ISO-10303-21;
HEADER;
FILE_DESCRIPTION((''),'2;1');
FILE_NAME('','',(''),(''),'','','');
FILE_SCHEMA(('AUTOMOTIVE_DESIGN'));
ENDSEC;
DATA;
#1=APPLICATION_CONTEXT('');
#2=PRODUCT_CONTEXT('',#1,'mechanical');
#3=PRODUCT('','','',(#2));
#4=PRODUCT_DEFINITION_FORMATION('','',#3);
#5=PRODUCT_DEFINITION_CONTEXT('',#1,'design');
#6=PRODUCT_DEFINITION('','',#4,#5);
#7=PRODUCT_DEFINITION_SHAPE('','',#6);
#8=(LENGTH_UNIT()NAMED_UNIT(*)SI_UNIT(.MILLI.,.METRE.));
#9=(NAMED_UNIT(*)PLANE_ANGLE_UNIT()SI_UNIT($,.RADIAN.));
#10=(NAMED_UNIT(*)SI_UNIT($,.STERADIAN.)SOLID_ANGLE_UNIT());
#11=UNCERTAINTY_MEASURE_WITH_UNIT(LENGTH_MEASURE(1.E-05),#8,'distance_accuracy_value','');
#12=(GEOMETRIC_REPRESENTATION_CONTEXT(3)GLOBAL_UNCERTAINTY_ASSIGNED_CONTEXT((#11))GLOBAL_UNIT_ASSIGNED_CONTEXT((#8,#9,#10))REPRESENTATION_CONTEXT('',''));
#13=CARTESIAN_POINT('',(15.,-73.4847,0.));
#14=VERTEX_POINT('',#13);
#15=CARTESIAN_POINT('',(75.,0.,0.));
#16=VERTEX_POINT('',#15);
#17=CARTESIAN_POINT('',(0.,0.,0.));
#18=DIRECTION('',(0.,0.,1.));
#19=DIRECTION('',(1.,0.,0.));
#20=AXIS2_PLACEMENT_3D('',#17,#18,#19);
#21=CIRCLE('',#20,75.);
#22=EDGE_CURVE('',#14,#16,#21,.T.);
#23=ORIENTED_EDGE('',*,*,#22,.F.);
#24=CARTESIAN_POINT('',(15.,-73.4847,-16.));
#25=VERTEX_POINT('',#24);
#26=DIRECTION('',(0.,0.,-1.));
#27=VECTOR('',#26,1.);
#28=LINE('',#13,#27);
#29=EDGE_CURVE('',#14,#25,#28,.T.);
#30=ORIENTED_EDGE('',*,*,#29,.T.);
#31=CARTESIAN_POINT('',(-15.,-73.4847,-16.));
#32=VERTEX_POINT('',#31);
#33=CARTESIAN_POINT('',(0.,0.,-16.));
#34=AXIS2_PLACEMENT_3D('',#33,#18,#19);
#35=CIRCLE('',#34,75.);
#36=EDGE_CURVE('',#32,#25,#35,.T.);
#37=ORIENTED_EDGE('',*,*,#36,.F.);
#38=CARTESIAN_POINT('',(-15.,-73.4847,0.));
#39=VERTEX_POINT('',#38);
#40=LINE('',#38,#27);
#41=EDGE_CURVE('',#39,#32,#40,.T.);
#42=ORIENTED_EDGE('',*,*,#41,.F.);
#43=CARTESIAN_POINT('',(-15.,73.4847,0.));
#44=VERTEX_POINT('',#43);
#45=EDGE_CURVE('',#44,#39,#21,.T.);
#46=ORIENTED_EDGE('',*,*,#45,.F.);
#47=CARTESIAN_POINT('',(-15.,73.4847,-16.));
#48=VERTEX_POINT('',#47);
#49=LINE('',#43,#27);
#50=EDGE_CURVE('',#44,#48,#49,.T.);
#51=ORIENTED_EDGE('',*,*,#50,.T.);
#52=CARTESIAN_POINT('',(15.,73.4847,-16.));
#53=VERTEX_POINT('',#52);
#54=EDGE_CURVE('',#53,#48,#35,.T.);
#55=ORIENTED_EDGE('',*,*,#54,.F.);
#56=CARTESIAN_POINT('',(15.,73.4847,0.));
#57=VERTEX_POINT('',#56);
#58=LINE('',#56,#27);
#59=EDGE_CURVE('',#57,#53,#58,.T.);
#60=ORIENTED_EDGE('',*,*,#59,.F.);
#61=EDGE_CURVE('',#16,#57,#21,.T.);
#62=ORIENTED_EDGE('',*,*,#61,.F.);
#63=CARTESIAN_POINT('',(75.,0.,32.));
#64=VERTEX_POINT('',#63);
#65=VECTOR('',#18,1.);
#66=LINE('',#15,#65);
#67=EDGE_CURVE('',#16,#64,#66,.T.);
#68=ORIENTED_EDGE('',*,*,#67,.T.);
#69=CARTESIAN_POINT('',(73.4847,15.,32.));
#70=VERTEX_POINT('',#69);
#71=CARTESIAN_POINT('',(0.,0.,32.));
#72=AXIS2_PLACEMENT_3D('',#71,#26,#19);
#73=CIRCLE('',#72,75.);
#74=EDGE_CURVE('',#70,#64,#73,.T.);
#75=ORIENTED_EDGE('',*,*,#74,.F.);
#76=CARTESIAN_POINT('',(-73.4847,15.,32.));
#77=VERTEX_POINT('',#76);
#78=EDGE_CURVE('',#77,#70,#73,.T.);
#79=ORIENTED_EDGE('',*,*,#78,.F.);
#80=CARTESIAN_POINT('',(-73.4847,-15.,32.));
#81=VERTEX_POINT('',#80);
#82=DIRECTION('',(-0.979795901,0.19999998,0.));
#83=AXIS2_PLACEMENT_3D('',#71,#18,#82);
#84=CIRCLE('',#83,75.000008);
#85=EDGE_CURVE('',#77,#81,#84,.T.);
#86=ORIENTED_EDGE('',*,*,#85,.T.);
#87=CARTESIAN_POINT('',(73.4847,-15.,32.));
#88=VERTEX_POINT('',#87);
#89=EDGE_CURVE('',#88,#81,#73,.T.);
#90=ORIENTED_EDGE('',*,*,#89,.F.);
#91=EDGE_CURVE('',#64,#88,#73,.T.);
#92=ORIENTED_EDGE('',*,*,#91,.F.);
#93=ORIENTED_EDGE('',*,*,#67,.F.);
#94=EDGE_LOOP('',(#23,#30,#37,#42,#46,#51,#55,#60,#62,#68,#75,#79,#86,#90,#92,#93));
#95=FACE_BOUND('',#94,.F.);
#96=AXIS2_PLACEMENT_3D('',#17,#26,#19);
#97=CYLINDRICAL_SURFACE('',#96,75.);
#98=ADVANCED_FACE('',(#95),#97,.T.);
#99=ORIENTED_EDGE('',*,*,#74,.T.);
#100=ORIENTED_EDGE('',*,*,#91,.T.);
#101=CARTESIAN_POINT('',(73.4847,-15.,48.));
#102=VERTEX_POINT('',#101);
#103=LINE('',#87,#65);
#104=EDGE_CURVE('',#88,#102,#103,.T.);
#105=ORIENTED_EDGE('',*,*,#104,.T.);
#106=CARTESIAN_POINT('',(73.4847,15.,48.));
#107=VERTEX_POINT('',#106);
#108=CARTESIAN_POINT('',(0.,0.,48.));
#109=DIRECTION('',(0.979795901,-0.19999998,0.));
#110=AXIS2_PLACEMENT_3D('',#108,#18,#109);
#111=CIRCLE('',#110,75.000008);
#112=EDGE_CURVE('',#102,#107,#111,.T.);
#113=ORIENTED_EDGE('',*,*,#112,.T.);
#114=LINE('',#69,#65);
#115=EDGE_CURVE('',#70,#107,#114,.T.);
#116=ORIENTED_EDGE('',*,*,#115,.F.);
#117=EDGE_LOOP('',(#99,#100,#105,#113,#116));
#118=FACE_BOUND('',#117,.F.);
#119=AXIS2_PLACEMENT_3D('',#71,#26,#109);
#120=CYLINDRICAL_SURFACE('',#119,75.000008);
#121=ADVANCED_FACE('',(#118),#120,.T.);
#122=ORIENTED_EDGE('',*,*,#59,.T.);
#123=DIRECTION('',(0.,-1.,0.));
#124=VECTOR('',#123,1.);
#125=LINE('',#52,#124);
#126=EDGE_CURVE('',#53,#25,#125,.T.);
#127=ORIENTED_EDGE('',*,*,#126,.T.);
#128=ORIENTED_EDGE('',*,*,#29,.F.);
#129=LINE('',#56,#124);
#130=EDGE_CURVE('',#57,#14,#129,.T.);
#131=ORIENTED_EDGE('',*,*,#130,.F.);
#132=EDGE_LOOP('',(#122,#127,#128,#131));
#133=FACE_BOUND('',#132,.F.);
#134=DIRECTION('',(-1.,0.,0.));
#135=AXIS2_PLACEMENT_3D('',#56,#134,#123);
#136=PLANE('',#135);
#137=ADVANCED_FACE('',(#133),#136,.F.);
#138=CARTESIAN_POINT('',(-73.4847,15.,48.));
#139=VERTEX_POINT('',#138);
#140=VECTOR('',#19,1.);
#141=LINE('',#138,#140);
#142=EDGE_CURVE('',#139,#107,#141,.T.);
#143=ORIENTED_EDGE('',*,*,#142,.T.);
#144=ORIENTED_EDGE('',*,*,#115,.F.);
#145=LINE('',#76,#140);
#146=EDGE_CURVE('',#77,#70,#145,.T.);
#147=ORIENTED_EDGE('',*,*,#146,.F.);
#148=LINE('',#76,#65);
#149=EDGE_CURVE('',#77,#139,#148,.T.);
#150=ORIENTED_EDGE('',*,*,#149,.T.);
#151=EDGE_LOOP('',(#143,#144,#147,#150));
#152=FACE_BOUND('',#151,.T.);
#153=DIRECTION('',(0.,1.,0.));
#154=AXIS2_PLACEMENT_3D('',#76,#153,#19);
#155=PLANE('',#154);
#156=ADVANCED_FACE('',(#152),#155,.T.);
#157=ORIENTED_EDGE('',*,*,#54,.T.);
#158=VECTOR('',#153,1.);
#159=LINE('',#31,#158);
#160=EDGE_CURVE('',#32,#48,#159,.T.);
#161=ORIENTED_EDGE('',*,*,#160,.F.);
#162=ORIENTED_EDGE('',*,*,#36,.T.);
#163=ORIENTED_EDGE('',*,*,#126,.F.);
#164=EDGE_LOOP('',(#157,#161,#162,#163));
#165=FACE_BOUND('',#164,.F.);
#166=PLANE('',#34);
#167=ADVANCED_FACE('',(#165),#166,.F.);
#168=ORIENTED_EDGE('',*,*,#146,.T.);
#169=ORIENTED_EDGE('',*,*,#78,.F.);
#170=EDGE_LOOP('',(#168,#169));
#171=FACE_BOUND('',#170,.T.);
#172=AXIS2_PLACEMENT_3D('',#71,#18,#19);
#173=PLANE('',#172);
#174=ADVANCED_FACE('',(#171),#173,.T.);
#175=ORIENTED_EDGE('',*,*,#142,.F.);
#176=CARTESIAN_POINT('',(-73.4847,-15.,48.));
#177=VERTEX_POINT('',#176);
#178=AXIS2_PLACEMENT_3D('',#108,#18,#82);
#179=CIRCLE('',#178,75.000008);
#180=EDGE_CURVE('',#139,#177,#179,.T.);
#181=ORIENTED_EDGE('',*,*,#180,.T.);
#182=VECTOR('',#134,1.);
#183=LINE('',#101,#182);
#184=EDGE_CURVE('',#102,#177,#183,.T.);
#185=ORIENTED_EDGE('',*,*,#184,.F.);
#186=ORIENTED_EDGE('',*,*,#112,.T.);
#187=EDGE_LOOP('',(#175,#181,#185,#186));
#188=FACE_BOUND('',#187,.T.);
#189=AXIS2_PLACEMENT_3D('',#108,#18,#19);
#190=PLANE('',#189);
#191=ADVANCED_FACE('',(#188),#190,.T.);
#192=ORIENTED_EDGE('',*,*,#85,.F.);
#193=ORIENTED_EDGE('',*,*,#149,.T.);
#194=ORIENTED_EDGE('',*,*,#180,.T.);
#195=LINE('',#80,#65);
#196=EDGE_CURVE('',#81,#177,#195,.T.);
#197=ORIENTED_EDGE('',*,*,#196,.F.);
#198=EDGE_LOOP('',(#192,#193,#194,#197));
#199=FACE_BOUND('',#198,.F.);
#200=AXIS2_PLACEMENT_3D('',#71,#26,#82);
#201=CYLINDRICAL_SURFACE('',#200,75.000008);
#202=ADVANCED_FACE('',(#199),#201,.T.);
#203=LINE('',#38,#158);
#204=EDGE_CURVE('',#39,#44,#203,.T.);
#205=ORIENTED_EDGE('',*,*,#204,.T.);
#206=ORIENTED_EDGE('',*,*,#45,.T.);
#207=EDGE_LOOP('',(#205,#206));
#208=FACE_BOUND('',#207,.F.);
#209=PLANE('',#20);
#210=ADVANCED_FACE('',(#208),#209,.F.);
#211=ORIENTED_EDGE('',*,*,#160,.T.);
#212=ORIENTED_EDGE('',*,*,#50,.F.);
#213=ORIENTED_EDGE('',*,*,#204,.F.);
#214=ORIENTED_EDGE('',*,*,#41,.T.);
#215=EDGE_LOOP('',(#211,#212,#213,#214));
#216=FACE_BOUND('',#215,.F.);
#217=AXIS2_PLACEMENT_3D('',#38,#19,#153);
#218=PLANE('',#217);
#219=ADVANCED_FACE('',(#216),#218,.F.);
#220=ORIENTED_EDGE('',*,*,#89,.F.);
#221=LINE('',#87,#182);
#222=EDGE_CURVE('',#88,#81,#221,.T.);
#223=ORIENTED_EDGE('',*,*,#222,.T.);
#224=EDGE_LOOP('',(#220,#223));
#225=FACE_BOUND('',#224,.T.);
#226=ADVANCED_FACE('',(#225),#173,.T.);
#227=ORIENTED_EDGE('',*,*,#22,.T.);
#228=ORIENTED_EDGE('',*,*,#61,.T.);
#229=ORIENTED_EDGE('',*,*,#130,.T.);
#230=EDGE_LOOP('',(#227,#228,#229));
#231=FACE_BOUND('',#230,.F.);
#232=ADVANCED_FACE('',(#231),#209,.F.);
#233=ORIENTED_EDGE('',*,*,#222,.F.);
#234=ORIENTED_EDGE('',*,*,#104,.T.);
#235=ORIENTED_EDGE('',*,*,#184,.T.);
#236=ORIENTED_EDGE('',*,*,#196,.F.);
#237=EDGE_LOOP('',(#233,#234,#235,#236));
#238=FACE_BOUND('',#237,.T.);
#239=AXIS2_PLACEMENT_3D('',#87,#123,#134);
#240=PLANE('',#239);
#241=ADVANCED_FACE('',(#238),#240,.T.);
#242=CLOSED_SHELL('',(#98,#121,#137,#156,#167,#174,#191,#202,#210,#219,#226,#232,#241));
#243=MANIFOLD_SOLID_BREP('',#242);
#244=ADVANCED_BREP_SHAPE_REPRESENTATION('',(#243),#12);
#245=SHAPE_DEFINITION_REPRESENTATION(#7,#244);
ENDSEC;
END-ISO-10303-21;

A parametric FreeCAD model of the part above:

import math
import FreeCAD as App
import Part
import Sketcher
Q = App.Units.Quantity


def add_polygon(sketch, points):
    """Adds a closed chain of lines whose ends are joined by coincident constraints."""
    first, n = sketch.GeometryCount, len(points)
    for a, b in zip(points, points[1:] + points[:1]):
        sketch.addGeometry(Part.LineSegment(App.Vector(*a, 0), App.Vector(*b, 0)), False)
    for i in range(n):
        sketch.addConstraint(Sketcher.Constraint("Coincident", first + i, 2, first + (i + 1) % n, 1))

doc = App.newDocument("Part")
body = doc.addObject("PartDesign::Body", "Body")

# Sketch on XY plane
sketch1 = doc.addObject("Sketcher::SketchObject", "Sketch")
body.addObject(sketch1)
sketch1.AttachmentSupport = (doc.XY_Plane, [""])
sketch1.MapMode = "FlatFace"
sketch1.addGeometry(Part.LineSegment(App.Vector(15, -73, 0), App.Vector(15, 73, 0)), False)
sketch1.addGeometry(Part.ArcOfCircle(Part.Circle(App.Vector(0, 0, 0), App.Vector(0, 0, 1), 75), math.radians(78), math.radians(102)), False)
sketch1.addGeometry(Part.LineSegment(App.Vector(-15, 73, 0), App.Vector(-15, -73, 0)), False)
sketch1.addGeometry(Part.ArcOfCircle(Part.Circle(App.Vector(0, 0, 0), App.Vector(0, 0, 1), 75), math.radians(-102), math.radians(-78)), False)
sketch1.addConstraint(Sketcher.Constraint("Coincident", 0, 2, 1, 1))
sketch1.addConstraint(Sketcher.Constraint("Coincident", 1, 2, 2, 1))
sketch1.addConstraint(Sketcher.Constraint("Coincident", 2, 2, 3, 1))
sketch1.addConstraint(Sketcher.Constraint("Coincident", 3, 2, 0, 1))
sketch1.addConstraint(Sketcher.Constraint("Vertical", 0))
sketch1.addConstraint(Sketcher.Constraint("Vertical", 2))
sketch1.addConstraint(Sketcher.Constraint("Coincident", 1, 3, -1, 1))
sketch1.addConstraint(Sketcher.Constraint("Coincident", 3, 3, -1, 1))
sketch1.addConstraint(Sketcher.Constraint("Equal", 1, 3))
sketch1.addConstraint(Sketcher.Constraint("Horizontal", 0, 2, 1, 2))
sketch1.addConstraint(Sketcher.Constraint("Radius", 1, Q("75 mm")))
sketch1.addConstraint(Sketcher.Constraint("DistanceX", -1, 1, 0, 2, Q("15 mm")))
pad1 = doc.addObject("PartDesign::Pad", "Pad")
body.addObject(pad1)
pad1.Profile = sketch1
pad1.Length = 16
pad1.Reversed = True

# Sketch on XY plane
sketch2 = doc.addObject("Sketcher::SketchObject", "Sketch001")
body.addObject(sketch2)
sketch2.AttachmentSupport = (doc.XY_Plane, [""])
sketch2.MapMode = "FlatFace"
sketch2.addGeometry(Part.Circle(App.Vector(0, 0, 0), App.Vector(0, 0, 1), 75), False)
sketch2.addConstraint(Sketcher.Constraint("Coincident", 0, 3, -1, 1))
sketch2.addConstraint(Sketcher.Constraint("Diameter", 0, Q("150 mm")))
pad2 = doc.addObject("PartDesign::Pad", "Pad001")
body.addObject(pad2)
pad2.Profile = sketch2
pad2.Length = 32

# Sketch on XY plane
sketch3 = doc.addObject("Sketcher::SketchObject", "Sketch002")
body.addObject(sketch3)
sketch3.AttachmentSupport = (doc.XY_Plane, [""])
sketch3.MapMode = "FlatFace"
sketch3.AttachmentOffset = App.Placement(App.Vector(0, 0, 32), App.Rotation())
add_polygon(sketch3, [(75, 15), (-75, 15), (-75, -15), (75, -15)])  # lines 0-3
sketch3.addConstraint(Sketcher.Constraint("Horizontal", 0))
sketch3.addConstraint(Sketcher.Constraint("Vertical", 1))
sketch3.addConstraint(Sketcher.Constraint("Horizontal", 2))
sketch3.addConstraint(Sketcher.Constraint("Vertical", 3))
sketch3.addConstraint(Sketcher.Constraint("Symmetric", 0, 2, 2, 2, -1, 1))
sketch3.addConstraint(Sketcher.Constraint("DistanceY", 1, 2, 1, 1, Q("30 mm")))
sketch3.addConstraint(Sketcher.Constraint("DistanceX", 0, 2, -1, 1, Q("75 mm")))
pocket1 = doc.addObject("PartDesign::Pocket", "Pocket")
body.addObject(pocket1)
pocket1.Profile = sketch3
pocket1.Length = 32
pocket1.Reversed = True

# Sketch on XY plane
sketch4 = doc.addObject("Sketcher::SketchObject", "Sketch003")
body.addObject(sketch4)
sketch4.AttachmentSupport = (doc.XY_Plane, [""])
sketch4.MapMode = "FlatFace"
sketch4.AttachmentOffset = App.Placement(App.Vector(0, 0, 32), App.Rotation())
sketch4.addGeometry(Part.LineSegment(App.Vector(73, 15, 0), App.Vector(-73, 15, 0)), False)
sketch4.addGeometry(Part.ArcOfCircle(Part.Circle(App.Vector(0, 0, 0), App.Vector(0, 0, 1), 75), math.radians(168), math.radians(192)), False)
sketch4.addGeometry(Part.LineSegment(App.Vector(-73, -15, 0), App.Vector(73, -15, 0)), False)
sketch4.addGeometry(Part.ArcOfCircle(Part.Circle(App.Vector(0, 0, 0), App.Vector(0, 0, 1), 75), math.radians(-12), math.radians(12)), False)
sketch4.addConstraint(Sketcher.Constraint("Coincident", 0, 2, 1, 1))
sketch4.addConstraint(Sketcher.Constraint("Coincident", 1, 2, 2, 1))
sketch4.addConstraint(Sketcher.Constraint("Coincident", 2, 2, 3, 1))
sketch4.addConstraint(Sketcher.Constraint("Coincident", 3, 2, 0, 1))
sketch4.addConstraint(Sketcher.Constraint("Horizontal", 0))
sketch4.addConstraint(Sketcher.Constraint("Horizontal", 2))
sketch4.addConstraint(Sketcher.Constraint("Coincident", 1, 3, -1, 1))
sketch4.addConstraint(Sketcher.Constraint("Coincident", 3, 3, -1, 1))
sketch4.addConstraint(Sketcher.Constraint("Equal", 1, 3))
sketch4.addConstraint(Sketcher.Constraint("Vertical", 0, 2, 1, 2))
sketch4.addConstraint(Sketcher.Constraint("Radius", 1, Q("75 mm")))
sketch4.addConstraint(Sketcher.Constraint("DistanceY", -1, 1, 0, 2, Q("15 mm")))
pad3 = doc.addObject("PartDesign::Pad", "Pad002")
body.addObject(pad3)
pad3.Profile = sketch4
pad3.Length = 16

doc.recompute()
